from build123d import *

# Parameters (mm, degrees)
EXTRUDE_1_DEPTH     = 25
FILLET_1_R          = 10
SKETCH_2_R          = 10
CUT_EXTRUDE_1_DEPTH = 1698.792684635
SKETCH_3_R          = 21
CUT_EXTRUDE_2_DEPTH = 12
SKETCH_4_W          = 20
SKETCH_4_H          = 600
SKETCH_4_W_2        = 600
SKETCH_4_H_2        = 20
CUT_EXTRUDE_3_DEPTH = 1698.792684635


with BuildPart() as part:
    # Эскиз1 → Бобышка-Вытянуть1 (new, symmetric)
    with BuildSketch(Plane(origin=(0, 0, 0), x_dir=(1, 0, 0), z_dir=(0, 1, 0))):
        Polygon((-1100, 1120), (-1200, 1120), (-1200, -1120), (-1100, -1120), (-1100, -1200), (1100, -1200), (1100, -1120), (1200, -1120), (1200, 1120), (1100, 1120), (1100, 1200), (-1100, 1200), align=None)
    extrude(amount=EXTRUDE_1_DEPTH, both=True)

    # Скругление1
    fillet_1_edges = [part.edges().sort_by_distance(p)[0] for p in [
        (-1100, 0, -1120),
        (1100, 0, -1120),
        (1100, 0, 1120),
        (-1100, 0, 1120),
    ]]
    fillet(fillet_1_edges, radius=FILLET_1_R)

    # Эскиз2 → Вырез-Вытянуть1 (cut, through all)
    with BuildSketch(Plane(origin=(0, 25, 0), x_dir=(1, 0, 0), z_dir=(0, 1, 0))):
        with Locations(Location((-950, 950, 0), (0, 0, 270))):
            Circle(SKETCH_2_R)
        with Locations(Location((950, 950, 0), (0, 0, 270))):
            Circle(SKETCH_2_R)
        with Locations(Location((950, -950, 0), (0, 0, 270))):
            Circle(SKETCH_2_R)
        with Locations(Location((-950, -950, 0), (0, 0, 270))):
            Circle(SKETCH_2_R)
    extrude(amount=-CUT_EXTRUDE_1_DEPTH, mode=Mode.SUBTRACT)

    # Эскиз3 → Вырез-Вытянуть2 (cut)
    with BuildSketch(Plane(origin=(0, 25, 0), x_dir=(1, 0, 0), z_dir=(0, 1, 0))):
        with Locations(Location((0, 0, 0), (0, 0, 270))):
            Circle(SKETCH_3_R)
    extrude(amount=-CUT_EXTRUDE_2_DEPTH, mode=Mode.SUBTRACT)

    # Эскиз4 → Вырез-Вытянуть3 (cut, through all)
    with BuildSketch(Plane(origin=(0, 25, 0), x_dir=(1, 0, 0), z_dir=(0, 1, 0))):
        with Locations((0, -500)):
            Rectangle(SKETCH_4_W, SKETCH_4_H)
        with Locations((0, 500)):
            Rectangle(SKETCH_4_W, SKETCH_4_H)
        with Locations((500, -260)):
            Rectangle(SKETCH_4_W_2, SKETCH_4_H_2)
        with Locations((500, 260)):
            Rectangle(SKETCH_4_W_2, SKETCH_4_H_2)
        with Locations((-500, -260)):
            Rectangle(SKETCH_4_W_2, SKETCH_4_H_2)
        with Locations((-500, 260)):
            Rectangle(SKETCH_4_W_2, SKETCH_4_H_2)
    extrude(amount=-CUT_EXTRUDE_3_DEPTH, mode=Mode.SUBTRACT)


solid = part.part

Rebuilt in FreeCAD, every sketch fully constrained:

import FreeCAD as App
import Part
import Sketcher
Q = App.Units.Quantity


def edges_at(feature, points):
    """Names of the edges that pass closest to the given points."""
    edges = feature.Shape.Edges
    near = lambda p: min(range(len(edges)), key=lambda i: edges[i].distToShape(Part.Vertex(*p))[0])
    return sorted({f"Edge{near(p) + 1}" for p in points})


def add_polygon(sketch, points):
    """Adds a closed chain of lines whose ends are joined by coincident constraints."""
    first, n = sketch.GeometryCount, len(points)
    for a, b in zip(points, points[1:] + points[:1]):
        sketch.addGeometry(Part.LineSegment(App.Vector(*a, 0), App.Vector(*b, 0)), False)
    for i in range(n):
        sketch.addConstraint(Sketcher.Constraint("Coincident", first + i, 2, first + (i + 1) % n, 1))

doc = App.newDocument("Part")
body = doc.addObject("PartDesign::Body", "Body")

sketch1 = doc.addObject("Sketcher::SketchObject", "Sketch")
body.addObject(sketch1)
sketch1.AttachmentSupport = (doc.XZ_Plane, [""])
sketch1.MapMode = "FlatFace"
add_polygon(sketch1, [(-1100, -1120), (-1200, -1120), (-1200, 1120), (-1100, 1120), (-1100, 1200), (1100, 1200), (1100, 1120), (1200, 1120), (1200, -1120), (1100, -1120), (1100, -1200), (-1100, -1200)])
sketch1.addConstraint(Sketcher.Constraint("Horizontal", 0))
sketch1.addConstraint(Sketcher.Constraint("Vertical", 1))
sketch1.addConstraint(Sketcher.Constraint("Horizontal", 2))
sketch1.addConstraint(Sketcher.Constraint("Vertical", 3))
sketch1.addConstraint(Sketcher.Constraint("Horizontal", 4))
sketch1.addConstraint(Sketcher.Constraint("Vertical", 5))
sketch1.addConstraint(Sketcher.Constraint("Horizontal", 6))
sketch1.addConstraint(Sketcher.Constraint("Vertical", 7))
sketch1.addConstraint(Sketcher.Constraint("Horizontal", 8))
sketch1.addConstraint(Sketcher.Constraint("Vertical", 9))
sketch1.addConstraint(Sketcher.Constraint("Horizontal", 10))
sketch1.addConstraint(Sketcher.Constraint("Vertical", 11))
sketch1.addConstraint(Sketcher.Constraint("Symmetric", 0, 2, 6, 2, -1, 1))
sketch1.addConstraint(Sketcher.Constraint("Symmetric", 2, 2, 8, 2, -1, 1))
sketch1.addConstraint(Sketcher.Constraint("Symmetric", 4, 2, 10, 2, -1, 1))
sketch1.addConstraint(Sketcher.Constraint("Symmetric", 2, 2, 5, 2, -2))
sketch1.addConstraint(Sketcher.Constraint("DistanceX", 0, 2, 0, 1, Q("100 mm")))
sketch1.addConstraint(Sketcher.Constraint("DistanceX", 4, 1, 4, 2, Q("2200 mm")))
sketch1.addConstraint(Sketcher.Constraint("DistanceY", 1, 1, 1, 2, Q("2240 mm")))
sketch1.addConstraint(Sketcher.Constraint("DistanceY", 3, 1, 3, 2, Q("80 mm")))
pad1 = doc.addObject("PartDesign::Pad", "Pad")
body.addObject(pad1)
pad1.Profile = sketch1
pad1.Length = 50
pad1.Midplane = True
doc.recompute()

fillet = doc.addObject("PartDesign::Fillet", "Fillet")
body.addObject(fillet)
fillet.Base = (pad1, edges_at(pad1, [
    (-1100, 0, -1120),
    (1100, 0, -1120),
    (1100, 0, 1120),
    (-1100, 0, 1120),
]))
fillet.Radius = 10

sketch2 = doc.addObject("Sketcher::SketchObject", "Sketch001")
body.addObject(sketch2)
sketch2.AttachmentSupport = (doc.XZ_Plane, [""])
sketch2.MapMode = "FlatFace"
sketch2.AttachmentOffset = App.Placement(App.Vector(0, 0, -25), App.Rotation())
sketch2.addGeometry(Part.Circle(App.Vector(-950, -950, 0), App.Vector(0, 0, 1), 10), False)
sketch2.addGeometry(Part.Circle(App.Vector(950, -950, 0), App.Vector(0, 0, 1), 10), False)
sketch2.addGeometry(Part.Circle(App.Vector(950, 950, 0), App.Vector(0, 0, 1), 10), False)
sketch2.addGeometry(Part.Circle(App.Vector(-950, 950, 0), App.Vector(0, 0, 1), 10), False)
sketch2.addConstraint(Sketcher.Constraint("Equal", 0, 1))
sketch2.addConstraint(Sketcher.Constraint("Equal", 1, 2))
sketch2.addConstraint(Sketcher.Constraint("Equal", 2, 3))
sketch2.addConstraint(Sketcher.Constraint("Symmetric", 0, 3, 2, 3, -1, 1))
sketch2.addConstraint(Sketcher.Constraint("Symmetric", 1, 3, 3, 3, -1, 1))
sketch2.addConstraint(Sketcher.Constraint("Symmetric", 0, 3, 1, 3, -2))
sketch2.addConstraint(Sketcher.Constraint("Diameter", 0, Q("20 mm")))
sketch2.addConstraint(Sketcher.Constraint("DistanceX", 0, 3, -1, 1, Q("950 mm")))
sketch2.addConstraint(Sketcher.Constraint("DistanceY", 0, 3, -1, 1, Q("950 mm")))
pocket1 = doc.addObject("PartDesign::Pocket", "Pocket")
body.addObject(pocket1)
pocket1.Profile = sketch2
pocket1.Type = "ThroughAll"
pocket1.Reversed = True

sketch3 = doc.addObject("Sketcher::SketchObject", "Sketch002")
body.addObject(sketch3)
sketch3.AttachmentSupport = (doc.XZ_Plane, [""])
sketch3.MapMode = "FlatFace"
sketch3.AttachmentOffset = App.Placement(App.Vector(0, 0, -25), App.Rotation())
sketch3.addGeometry(Part.Circle(App.Vector(0, 0, 0), App.Vector(0, 0, 1), 21), False)
sketch3.addConstraint(Sketcher.Constraint("Coincident", 0, 3, -1, 1))
sketch3.addConstraint(Sketcher.Constraint("Diameter", 0, Q("42 mm")))
pocket2 = doc.addObject("PartDesign::Pocket", "Pocket001")
body.addObject(pocket2)
pocket2.Profile = sketch3
pocket2.Length = 12
pocket2.Reversed = True

sketch4 = doc.addObject("Sketcher::SketchObject", "Sketch003")
body.addObject(sketch4)
sketch4.AttachmentSupport = (doc.XZ_Plane, [""])
sketch4.MapMode = "FlatFace"
sketch4.AttachmentOffset = App.Placement(App.Vector(0, 0, -25), App.Rotation())
add_polygon(sketch4, [(-10, 200), (-10, 800), (10, 800), (10, 200)])
add_polygon(sketch4, [(-10, -800), (-10, -200), (10, -200), (10, -800)])
add_polygon(sketch4, [(200, 250), (200, 270), (800, 270), (800, 250)])
add_polygon(sketch4, [(200, -270), (200, -250), (800, -250), (800, -270)])
add_polygon(sketch4, [(-800, 250), (-800, 270), (-200, 270), (-200, 250)])
add_polygon(sketch4, [(-800, -270), (-800, -250), (-200, -250), (-200, -270)])
sketch4.addConstraint(Sketcher.Constraint("Vertical", 0))
sketch4.addConstraint(Sketcher.Constraint("Horizontal", 1))
sketch4.addConstraint(Sketcher.Constraint("Vertical", 2))
sketch4.addConstraint(Sketcher.Constraint("Horizontal", 3))
sketch4.addConstraint(Sketcher.Constraint("Vertical", 4))
sketch4.addConstraint(Sketcher.Constraint("Horizontal", 5))
sketch4.addConstraint(Sketcher.Constraint("Vertical", 6))
sketch4.addConstraint(Sketcher.Constraint("Horizontal", 7))
sketch4.addConstraint(Sketcher.Constraint("Vertical", 8))
sketch4.addConstraint(Sketcher.Constraint("Horizontal", 9))
sketch4.addConstraint(Sketcher.Constraint("Vertical", 10))
sketch4.addConstraint(Sketcher.Constraint("Horizontal", 11))
sketch4.addConstraint(Sketcher.Constraint("Vertical", 12))
sketch4.addConstraint(Sketcher.Constraint("Horizontal", 13))
sketch4.addConstraint(Sketcher.Constraint("Vertical", 14))
sketch4.addConstraint(Sketcher.Constraint("Horizontal", 15))
sketch4.addConstraint(Sketcher.Constraint("Vertical", 16))
sketch4.addConstraint(Sketcher.Constraint("Horizontal", 17))
sketch4.addConstraint(Sketcher.Constraint("Vertical", 18))
sketch4.addConstraint(Sketcher.Constraint("Horizontal", 19))
sketch4.addConstraint(Sketcher.Constraint("Vertical", 20))
sketch4.addConstraint(Sketcher.Constraint("Horizontal", 21))
sketch4.addConstraint(Sketcher.Constraint("Vertical", 22))
sketch4.addConstraint(Sketcher.Constraint("Horizontal", 23))
sketch4.addConstraint(Sketcher.Constraint("Symmetric", 2, 2, 4, 2, -1, 1))
sketch4.addConstraint(Sketcher.Constraint("Symmetric", 0, 2, 6, 2, -1, 1))
sketch4.addConstraint(Sketcher.Constraint("Symmetric", 14, 2, 16, 2, -1, 1))
sketch4.addConstraint(Sketcher.Constraint("Symmetric", 12, 2, 18, 2, -1, 1))
sketch4.addConstraint(Sketcher.Constraint("Symmetric", 10, 2, 20, 2, -1, 1))
sketch4.addConstraint(Sketcher.Constraint("Symmetric", 8, 2, 22, 2, -1, 1))
sketch4.addConstraint(Sketcher.Constraint("Symmetric", 9, 2, 16, 2, -2))
sketch4.addConstraint(Sketcher.Constraint("Symmetric", 11, 2, 18, 2, -2))
sketch4.addConstraint(Sketcher.Constraint("Vertical", 3, 2, 4, 2))
sketch4.addConstraint(Sketcher.Constraint("Equal", 23, 0))
sketch4.addConstraint(Sketcher.Constraint("Equal", 7, 8))
sketch4.addConstraint(Sketcher.Constraint("DistanceX", 1, 1, 1, 2, Q("20 mm")))
sketch4.addConstraint(Sketcher.Constraint("DistanceX", 9, 1, 9, 2, Q("600 mm")))
sketch4.addConstraint(Sketcher.Constraint("DistanceY", -1, 1, 0, 2, Q("800 mm")))
sketch4.addConstraint(Sketcher.Constraint("DistanceX", -1, 1, 8, 2, Q("200 mm")))
sketch4.addConstraint(Sketcher.Constraint("DistanceY", -1, 1, 8, 2, Q("270 mm")))
pocket3 = doc.addObject("PartDesign::Pocket", "Pocket002")
body.addObject(pocket3)
pocket3.Profile = sketch4
pocket3.Type = "ThroughAll"
pocket3.Reversed = True

doc.recompute()
